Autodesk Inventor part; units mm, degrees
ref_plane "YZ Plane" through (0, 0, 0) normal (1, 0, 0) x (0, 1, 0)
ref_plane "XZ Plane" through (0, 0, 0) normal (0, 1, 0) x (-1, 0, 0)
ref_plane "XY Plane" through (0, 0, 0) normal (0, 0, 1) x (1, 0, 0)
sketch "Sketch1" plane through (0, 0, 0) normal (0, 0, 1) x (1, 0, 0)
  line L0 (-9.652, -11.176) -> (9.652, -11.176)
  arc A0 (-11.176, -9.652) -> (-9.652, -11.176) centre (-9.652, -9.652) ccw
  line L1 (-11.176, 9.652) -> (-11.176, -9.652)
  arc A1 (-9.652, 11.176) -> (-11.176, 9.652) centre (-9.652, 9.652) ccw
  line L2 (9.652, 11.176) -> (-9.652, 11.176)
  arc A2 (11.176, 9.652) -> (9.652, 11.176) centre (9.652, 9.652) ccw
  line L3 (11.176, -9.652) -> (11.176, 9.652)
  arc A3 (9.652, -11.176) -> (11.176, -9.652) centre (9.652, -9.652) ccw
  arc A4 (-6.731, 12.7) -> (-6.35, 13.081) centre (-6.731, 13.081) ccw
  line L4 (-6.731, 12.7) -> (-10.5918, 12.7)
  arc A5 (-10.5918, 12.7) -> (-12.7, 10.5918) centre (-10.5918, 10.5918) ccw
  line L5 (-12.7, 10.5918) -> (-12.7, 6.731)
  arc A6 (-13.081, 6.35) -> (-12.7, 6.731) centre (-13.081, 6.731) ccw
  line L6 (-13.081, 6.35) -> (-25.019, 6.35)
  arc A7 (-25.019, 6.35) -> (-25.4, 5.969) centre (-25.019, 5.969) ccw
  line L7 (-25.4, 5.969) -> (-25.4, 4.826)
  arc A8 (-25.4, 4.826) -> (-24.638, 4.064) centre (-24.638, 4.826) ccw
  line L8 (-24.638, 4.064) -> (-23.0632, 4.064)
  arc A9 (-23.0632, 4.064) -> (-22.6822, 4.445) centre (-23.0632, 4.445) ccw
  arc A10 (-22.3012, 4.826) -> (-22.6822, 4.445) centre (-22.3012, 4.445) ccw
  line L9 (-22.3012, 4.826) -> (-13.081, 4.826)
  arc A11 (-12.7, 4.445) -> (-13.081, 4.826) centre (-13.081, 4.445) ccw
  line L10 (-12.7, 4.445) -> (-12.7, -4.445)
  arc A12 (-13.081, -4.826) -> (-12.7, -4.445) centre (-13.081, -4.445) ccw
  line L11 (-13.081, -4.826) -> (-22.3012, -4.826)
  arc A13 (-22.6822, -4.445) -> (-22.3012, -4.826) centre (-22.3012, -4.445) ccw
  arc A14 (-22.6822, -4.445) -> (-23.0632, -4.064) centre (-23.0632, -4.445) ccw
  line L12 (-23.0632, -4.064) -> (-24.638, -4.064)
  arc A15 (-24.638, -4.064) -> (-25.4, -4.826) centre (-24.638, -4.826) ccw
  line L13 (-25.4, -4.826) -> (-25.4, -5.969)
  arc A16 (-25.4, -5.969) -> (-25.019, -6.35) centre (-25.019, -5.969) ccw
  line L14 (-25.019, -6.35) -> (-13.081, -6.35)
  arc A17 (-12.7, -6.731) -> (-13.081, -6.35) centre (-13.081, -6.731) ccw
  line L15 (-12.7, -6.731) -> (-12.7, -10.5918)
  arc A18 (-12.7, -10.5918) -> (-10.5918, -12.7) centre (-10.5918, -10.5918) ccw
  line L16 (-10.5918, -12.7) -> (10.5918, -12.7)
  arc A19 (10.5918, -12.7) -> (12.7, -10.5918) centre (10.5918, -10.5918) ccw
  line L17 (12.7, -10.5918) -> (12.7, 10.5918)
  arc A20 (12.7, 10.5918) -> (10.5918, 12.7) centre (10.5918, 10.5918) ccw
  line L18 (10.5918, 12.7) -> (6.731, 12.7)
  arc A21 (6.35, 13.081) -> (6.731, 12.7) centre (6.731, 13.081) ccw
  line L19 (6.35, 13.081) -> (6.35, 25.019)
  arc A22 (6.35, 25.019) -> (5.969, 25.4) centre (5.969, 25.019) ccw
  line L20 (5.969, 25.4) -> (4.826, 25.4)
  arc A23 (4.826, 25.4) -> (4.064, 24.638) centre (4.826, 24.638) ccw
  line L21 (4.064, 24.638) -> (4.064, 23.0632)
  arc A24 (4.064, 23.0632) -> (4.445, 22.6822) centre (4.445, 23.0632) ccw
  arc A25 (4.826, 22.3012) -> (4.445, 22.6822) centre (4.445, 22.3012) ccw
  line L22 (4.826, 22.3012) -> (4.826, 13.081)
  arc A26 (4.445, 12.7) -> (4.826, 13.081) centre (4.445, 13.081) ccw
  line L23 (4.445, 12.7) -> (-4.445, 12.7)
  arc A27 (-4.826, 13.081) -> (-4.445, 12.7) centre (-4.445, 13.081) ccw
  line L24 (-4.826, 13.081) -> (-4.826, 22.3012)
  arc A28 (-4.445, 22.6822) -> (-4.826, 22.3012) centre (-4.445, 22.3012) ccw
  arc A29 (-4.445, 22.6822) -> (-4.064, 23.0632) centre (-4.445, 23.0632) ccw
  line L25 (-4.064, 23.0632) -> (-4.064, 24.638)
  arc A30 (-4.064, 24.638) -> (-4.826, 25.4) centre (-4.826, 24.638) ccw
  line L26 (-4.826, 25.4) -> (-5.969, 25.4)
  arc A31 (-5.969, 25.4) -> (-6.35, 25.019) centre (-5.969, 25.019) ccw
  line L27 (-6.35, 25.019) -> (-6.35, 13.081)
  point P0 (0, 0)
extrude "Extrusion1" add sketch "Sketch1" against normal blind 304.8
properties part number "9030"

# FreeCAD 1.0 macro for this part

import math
import FreeCAD as App
import Part
import Sketcher
Q = App.Units.Quantity

doc = App.newDocument("Part")
body = doc.addObject("PartDesign::Body", "Body")

# Sketch on XY plane
sketch1 = doc.addObject("Sketcher::SketchObject", "Sketch")
body.addObject(sketch1)
sketch1.AttachmentSupport = (doc.XY_Plane, [""])
sketch1.MapMode = "FlatFace"
sketch1.addGeometry([
    Part.ArcOfCircle(Part.Circle(App.Vector(-6.73, 13.08, 0), App.Vector(0, 0, 1), 0.38), math.radians(-90), math.radians(0)),  # 0
    Part.LineSegment(App.Vector(-6.73, 12.7, 0), App.Vector(-10.59, 12.7, 0)),  # 1
    Part.ArcOfCircle(Part.Circle(App.Vector(-10.59, 10.59, 0), App.Vector(0, 0, 1), 2.11), math.radians(90), math.radians(180)),  # 2
    Part.LineSegment(App.Vector(-12.7, 10.59, 0), App.Vector(-12.7, 6.73, 0)),  # 3
    Part.ArcOfCircle(Part.Circle(App.Vector(-13.08, 6.73, 0), App.Vector(0, 0, 1), 0.38), math.radians(-90), math.radians(0)),  # 4
    Part.LineSegment(App.Vector(-13.08, 6.35, 0), App.Vector(-25.02, 6.35, 0)),  # 5
    Part.ArcOfCircle(Part.Circle(App.Vector(-25.02, 5.97, 0), App.Vector(0, 0, 1), 0.38), math.radians(90), math.radians(180)),  # 6
    Part.LineSegment(App.Vector(-25.4, 5.97, 0), App.Vector(-25.4, 4.83, 0)),  # 7
    Part.ArcOfCircle(Part.Circle(App.Vector(-24.64, 4.83, 0), App.Vector(0, 0, 1), 0.76), math.radians(180), math.radians(270)),  # 8
    Part.LineSegment(App.Vector(-24.64, 4.06, 0), App.Vector(-23.06, 4.06, 0)),  # 9
    Part.ArcOfCircle(Part.Circle(App.Vector(-23.06, 4.45, 0), App.Vector(0, 0, 1), 0.38), math.radians(-90), math.radians(0)),  # 10
    Part.ArcOfCircle(Part.Circle(App.Vector(-22.3, 4.45, 0), App.Vector(0, 0, 1), 0.38), math.radians(90), math.radians(180)),  # 11
    Part.LineSegment(App.Vector(-22.3, 4.83, 0), App.Vector(-13.08, 4.83, 0)),  # 12
    Part.ArcOfCircle(Part.Circle(App.Vector(-13.08, 4.45, 0), App.Vector(0, 0, 1), 0.38), math.radians(0), math.radians(90)),  # 13
    Part.LineSegment(App.Vector(-12.7, 4.45, 0), App.Vector(-12.7, -4.45, 0)),  # 14
    Part.ArcOfCircle(Part.Circle(App.Vector(-13.08, -4.45, 0), App.Vector(0, 0, 1), 0.38), math.radians(-90), math.radians(0)),  # 15
    Part.LineSegment(App.Vector(-13.08, -4.83, 0), App.Vector(-22.3, -4.83, 0)),  # 16
    Part.ArcOfCircle(Part.Circle(App.Vector(-22.3, -4.45, 0), App.Vector(0, 0, 1), 0.38), math.radians(180), math.radians(270)),  # 17
    Part.ArcOfCircle(Part.Circle(App.Vector(-23.06, -4.45, 0), App.Vector(0, 0, 1), 0.38), math.radians(0), math.radians(90)),  # 18
    Part.LineSegment(App.Vector(-23.06, -4.06, 0), App.Vector(-24.64, -4.06, 0)),  # 19
    Part.ArcOfCircle(Part.Circle(App.Vector(-24.64, -4.83, 0), App.Vector(0, 0, 1), 0.76), math.radians(90), math.radians(180)),  # 20
    Part.LineSegment(App.Vector(-25.4, -4.83, 0), App.Vector(-25.4, -5.97, 0)),  # 21
    Part.ArcOfCircle(Part.Circle(App.Vector(-25.02, -5.97, 0), App.Vector(0, 0, 1), 0.38), math.radians(180), math.radians(270)),  # 22
    Part.LineSegment(App.Vector(-25.02, -6.35, 0), App.Vector(-13.08, -6.35, 0)),  # 23
    Part.ArcOfCircle(Part.Circle(App.Vector(-13.08, -6.73, 0), App.Vector(0, 0, 1), 0.38), math.radians(0), math.radians(90)),  # 24
    Part.LineSegment(App.Vector(-12.7, -6.73, 0), App.Vector(-12.7, -10.59, 0)),  # 25
    Part.ArcOfCircle(Part.Circle(App.Vector(-10.59, -10.59, 0), App.Vector(0, 0, 1), 2.11), math.radians(180), math.radians(270)),  # 26
    Part.LineSegment(App.Vector(-10.59, -12.7, 0), App.Vector(10.59, -12.7, 0)),  # 27
    Part.ArcOfCircle(Part.Circle(App.Vector(10.59, -10.59, 0), App.Vector(0, 0, 1), 2.11), math.radians(-90), math.radians(0)),  # 28
    Part.LineSegment(App.Vector(12.7, -10.59, 0), App.Vector(12.7, 10.59, 0)),  # 29
    Part.ArcOfCircle(Part.Circle(App.Vector(10.59, 10.59, 0), App.Vector(0, 0, 1), 2.11), math.radians(0), math.radians(90)),  # 30
    Part.LineSegment(App.Vector(10.59, 12.7, 0), App.Vector(6.73, 12.7, 0)),  # 31
    Part.ArcOfCircle(Part.Circle(App.Vector(6.73, 13.08, 0), App.Vector(0, 0, 1), 0.38), math.radians(180), math.radians(270)),  # 32
    Part.LineSegment(App.Vector(6.35, 13.08, 0), App.Vector(6.35, 25.02, 0)),  # 33
    Part.ArcOfCircle(Part.Circle(App.Vector(5.97, 25.02, 0), App.Vector(0, 0, 1), 0.38), math.radians(0), math.radians(90)),  # 34
    Part.LineSegment(App.Vector(5.97, 25.4, 0), App.Vector(4.83, 25.4, 0)),  # 35
    Part.ArcOfCircle(Part.Circle(App.Vector(4.83, 24.64, 0), App.Vector(0, 0, 1), 0.76), math.radians(90), math.radians(180)),  # 36
    Part.LineSegment(App.Vector(4.06, 24.64, 0), App.Vector(4.06, 23.06, 0)),  # 37
    Part.ArcOfCircle(Part.Circle(App.Vector(4.45, 23.06, 0), App.Vector(0, 0, 1), 0.38), math.radians(180), math.radians(270)),  # 38
    Part.ArcOfCircle(Part.Circle(App.Vector(4.45, 22.3, 0), App.Vector(0, 0, 1), 0.38), math.radians(0), math.radians(90)),  # 39
    Part.LineSegment(App.Vector(4.83, 22.3, 0), App.Vector(4.83, 13.08, 0)),  # 40
    Part.ArcOfCircle(Part.Circle(App.Vector(4.45, 13.08, 0), App.Vector(0, 0, 1), 0.38), math.radians(-90), math.radians(0)),  # 41
    Part.LineSegment(App.Vector(4.45, 12.7, 0), App.Vector(-4.45, 12.7, 0)),  # 42
    Part.ArcOfCircle(Part.Circle(App.Vector(-4.45, 13.08, 0), App.Vector(0, 0, 1), 0.38), math.radians(180), math.radians(270)),  # 43
    Part.LineSegment(App.Vector(-4.83, 13.08, 0), App.Vector(-4.83, 22.3, 0)),  # 44
    Part.ArcOfCircle(Part.Circle(App.Vector(-4.45, 22.3, 0), App.Vector(0, 0, 1), 0.38), math.radians(90), math.radians(180)),  # 45
    Part.ArcOfCircle(Part.Circle(App.Vector(-4.45, 23.06, 0), App.Vector(0, 0, 1), 0.38), math.radians(-90), math.radians(0)),  # 46
    Part.LineSegment(App.Vector(-4.06, 23.06, 0), App.Vector(-4.06, 24.64, 0)),  # 47
    Part.ArcOfCircle(Part.Circle(App.Vector(-4.83, 24.64, 0), App.Vector(0, 0, 1), 0.76), math.radians(0), math.radians(90)),  # 48
    Part.LineSegment(App.Vector(-4.83, 25.4, 0), App.Vector(-5.97, 25.4, 0)),  # 49
    Part.ArcOfCircle(Part.Circle(App.Vector(-5.97, 25.02, 0), App.Vector(0, 0, 1), 0.38), math.radians(90), math.radians(180)),  # 50
    Part.LineSegment(App.Vector(-6.35, 25.02, 0), App.Vector(-6.35, 13.08, 0)),  # 51
    Part.LineSegment(App.Vector(9.65, -11.18, 0), App.Vector(-9.65, -11.18, 0)),  # 52
    Part.ArcOfCircle(Part.Circle(App.Vector(-9.65, -9.65, 0), App.Vector(0, 0, 1), 1.52), math.radians(180), math.radians(270)),  # 53
    Part.LineSegment(App.Vector(-11.18, -9.65, 0), App.Vector(-11.18, 9.65, 0)),  # 54
    Part.ArcOfCircle(Part.Circle(App.Vector(-9.65, 9.65, 0), App.Vector(0, 0, 1), 1.52), math.radians(90), math.radians(180)),  # 55
    Part.LineSegment(App.Vector(-9.65, 11.18, 0), App.Vector(9.65, 11.18, 0)),  # 56
    Part.ArcOfCircle(Part.Circle(App.Vector(9.65, 9.65, 0), App.Vector(0, 0, 1), 1.52), math.radians(0), math.radians(90)),  # 57
    Part.LineSegment(App.Vector(11.18, 9.65, 0), App.Vector(11.18, -9.65, 0)),  # 58
    Part.ArcOfCircle(Part.Circle(App.Vector(9.65, -9.65, 0), App.Vector(0, 0, 1), 1.52), math.radians(-90), math.radians(0)),  # 59
], False)
sketch1.addConstraint([
    Sketcher.Constraint("Tangent", 0, 1, 1, 1),
    Sketcher.Constraint("Tangent", 1, 2, 2, 1),
    Sketcher.Constraint("Tangent", 2, 2, 3, 1),
    Sketcher.Constraint("Tangent", 3, 2, 4, 2),
    Sketcher.Constraint("Tangent", 4, 1, 5, 1),
    Sketcher.Constraint("Tangent", 5, 2, 6, 1),
    Sketcher.Constraint("Tangent", 6, 2, 7, 1),
    Sketcher.Constraint("Tangent", 7, 2, 8, 1),
    Sketcher.Constraint("Tangent", 8, 2, 9, 1),
    Sketcher.Constraint("Tangent", 9, 2, 10, 1),
    Sketcher.Constraint("Tangent", 10, 2, 11, 2),
    Sketcher.Constraint("Tangent", 11, 1, 12, 1),
    Sketcher.Constraint("Tangent", 12, 2, 13, 2),
    Sketcher.Constraint("Tangent", 13, 1, 14, 1),
    Sketcher.Constraint("Tangent", 14, 2, 15, 2),
    Sketcher.Constraint("Tangent", 15, 1, 16, 1),
    Sketcher.Constraint("Tangent", 16, 2, 17, 2),
    Sketcher.Constraint("Tangent", 17, 1, 18, 1),
    Sketcher.Constraint("Tangent", 18, 2, 19, 1),
    Sketcher.Constraint("Tangent", 19, 2, 20, 1),
    Sketcher.Constraint("Tangent", 20, 2, 21, 1),
    Sketcher.Constraint("Tangent", 21, 2, 22, 1),
    Sketcher.Constraint("Tangent", 22, 2, 23, 1),
    Sketcher.Constraint("Tangent", 23, 2, 24, 2),
    Sketcher.Constraint("Tangent", 24, 1, 25, 1),
    Sketcher.Constraint("Tangent", 25, 2, 26, 1),
    Sketcher.Constraint("Tangent", 26, 2, 27, 1),
    Sketcher.Constraint("Tangent", 27, 2, 28, 1),
    Sketcher.Constraint("Tangent", 28, 2, 29, 1),
    Sketcher.Constraint("Tangent", 29, 2, 30, 1),
    Sketcher.Constraint("Tangent", 30, 2, 31, 1),
    Sketcher.Constraint("Tangent", 31, 2, 32, 2),
    Sketcher.Constraint("Tangent", 32, 1, 33, 1),
    Sketcher.Constraint("Tangent", 33, 2, 34, 1),
    Sketcher.Constraint("Tangent", 34, 2, 35, 1),
    Sketcher.Constraint("Tangent", 35, 2, 36, 1),
    Sketcher.Constraint("Tangent", 36, 2, 37, 1),
    Sketcher.Constraint("Tangent", 37, 2, 38, 1),
    Sketcher.Constraint("Tangent", 38, 2, 39, 2),
    Sketcher.Constraint("Tangent", 39, 1, 40, 1),
    Sketcher.Constraint("Tangent", 40, 2, 41, 2),
    Sketcher.Constraint("Tangent", 41, 1, 42, 1),
    Sketcher.Constraint("Tangent", 42, 2, 43, 2),
    Sketcher.Constraint("Tangent", 43, 1, 44, 1),
    Sketcher.Constraint("Tangent", 44, 2, 45, 2),
    Sketcher.Constraint("Tangent", 45, 1, 46, 1),
    Sketcher.Constraint("Tangent", 46, 2, 47, 1),
    Sketcher.Constraint("Tangent", 47, 2, 48, 1),
    Sketcher.Constraint("Tangent", 48, 2, 49, 1),
    Sketcher.Constraint("Tangent", 49, 2, 50, 1),
    Sketcher.Constraint("Tangent", 50, 2, 51, 1),
    Sketcher.Constraint("Tangent", 51, 2, 0, 2),
    Sketcher.Constraint("Tangent", 52, 2, 53, 2),
    Sketcher.Constraint("Tangent", 53, 1, 54, 1),
    Sketcher.Constraint("Tangent", 54, 2, 55, 2),
    Sketcher.Constraint("Tangent", 55, 1, 56, 1),
    Sketcher.Constraint("Tangent", 56, 2, 57, 2),
    Sketcher.Constraint("Tangent", 57, 1, 58, 1),
    Sketcher.Constraint("Tangent", 58, 2, 59, 2),
    Sketcher.Constraint("Tangent", 59, 1, 52, 1),
    Sketcher.Constraint("Horizontal", 1),
    Sketcher.Constraint("Vertical", 3),
    Sketcher.Constraint("Horizontal", 5),
    Sketcher.Constraint("Vertical", 7),
    Sketcher.Constraint("Horizontal", 9),
    Sketcher.Constraint("Horizontal", 12),
    Sketcher.Constraint("Vertical", 14),
    Sketcher.Constraint("Horizontal", 16),
    Sketcher.Constraint("Horizontal", 19),
    Sketcher.Constraint("Vertical", 21),
    Sketcher.Constraint("Horizontal", 23),
    Sketcher.Constraint("Vertical", 25),
    Sketcher.Constraint("Horizontal", 27),
    Sketcher.Constraint("Vertical", 29),
    Sketcher.Constraint("Horizontal", 31),
    Sketcher.Constraint("Vertical", 33),
    Sketcher.Constraint("Horizontal", 35),
    Sketcher.Constraint("Vertical", 37),
    Sketcher.Constraint("Vertical", 40),
    Sketcher.Constraint("Horizontal", 42),
    Sketcher.Constraint("Vertical", 44),
    Sketcher.Constraint("Vertical", 47),
    Sketcher.Constraint("Horizontal", 49),
    Sketcher.Constraint("Vertical", 51),
    Sketcher.Constraint("Horizontal", 52),
    Sketcher.Constraint("Vertical", 54),
    Sketcher.Constraint("Horizontal", 56),
    Sketcher.Constraint("Vertical", 58),
    Sketcher.Constraint("Equal", 0, 4),
    Sketcher.Constraint("Equal", 4, 6),
    Sketcher.Constraint("Equal", 6, 10),
    Sketcher.Constraint("Equal", 10, 11),
    Sketcher.Constraint("Equal", 11, 13),
    Sketcher.Constraint("Equal", 13, 15),
    Sketcher.Constraint("Equal", 15, 17),
    Sketcher.Constraint("Equal", 17, 18),
    Sketcher.Constraint("Equal", 8, 20),
    Sketcher.Constraint("Equal", 18, 22),
    Sketcher.Constraint("Equal", 22, 24),
    Sketcher.Constraint("Equal", 2, 26),
    Sketcher.Constraint("Equal", 26, 28),
    Sketcher.Constraint("Equal", 28, 30),
    Sketcher.Constraint("Equal", 24, 32),
    Sketcher.Constraint("Equal", 32, 34),
    Sketcher.Constraint("Equal", 20, 36),
    Sketcher.Constraint("Equal", 34, 38),
    Sketcher.Constraint("Equal", 38, 39),
    Sketcher.Constraint("Equal", 39, 41),
    Sketcher.Constraint("Equal", 41, 43),
    Sketcher.Constraint("Equal", 43, 45),
    Sketcher.Constraint("Equal", 45, 46),
    Sketcher.Constraint("Equal", 36, 48),
    Sketcher.Constraint("Equal", 46, 50),
    Sketcher.Constraint("Equal", 53, 55),
    Sketcher.Constraint("Equal", 55, 57),
    Sketcher.Constraint("Equal", 57, 59),
    Sketcher.Constraint("Symmetric", 2, 3, 28, 3, -1, 1),
    Sketcher.Constraint("Symmetric", 26, 3, 30, 3, -1, 1),
    Sketcher.Constraint("Symmetric", 53, 3, 57, 3, -1, 1),
    Sketcher.Constraint("Symmetric", 39, 3, 45, 3, -2),
    Sketcher.Constraint("Symmetric", 36, 3, 48, 3, -2),
    Sketcher.Constraint("Symmetric", 11, 3, 17, 3, -1),
    Sketcher.Constraint("Symmetric", 8, 3, 20, 3, -1),
    Sketcher.Constraint("Horizontal", 10, 3, 11, 3),
    Sketcher.Constraint("Horizontal", 32, 3, 41, 3),
    Sketcher.Constraint("Horizontal", 7, 2, 11, 1),
    Sketcher.Constraint("Vertical", 4, 3, 13, 3),
    Sketcher.Constraint("Vertical", 38, 3, 39, 3),
    Sketcher.Constraint("Equal", 1, 31),
    Sketcher.Constraint("Equal", 31, 3),
    Sketcher.Constraint("Equal", 49, 7),
    Sketcher.Constraint("Equal", 42, 14),
    Sketcher.Constraint("Equal", 7, 21),
    Sketcher.Constraint("Equal", 23, 33),
    Sketcher.Constraint("Equal", 19, 37),
    Sketcher.Constraint("Equal", 56, 54),
    Sketcher.Constraint("Radius", 8, Q("0.03 in")),
    Sketcher.Constraint("Radius", 53, Q("0.06 in")),
    Sketcher.Constraint("DistanceX", 6, 2, -1, 1, Q("1 in")),
    Sketcher.Constraint("Radius", 2, Q("0.083 in")),
    Sketcher.Constraint("DistanceX", 5, 2, 5, 1, Q("0.47 in")),
    Sketcher.Constraint("DistanceX", 42, 2, 42, 1, Q("0.35 in")),
    Sketcher.Constraint("DistanceX", 52, 2, 52, 1, Q("0.76 in")),
    Sketcher.Constraint("DistanceX", 1, 2, 1, 1, Q("0.152 in")),
    Sketcher.Constraint("DistanceX", 9, 1, 9, 2, Q("0.062 in")),
])
pad1 = doc.addObject("PartDesign::Pad", "Pad")
body.addObject(pad1)
pad1.Profile = sketch1
pad1.Length = Q("12 in")
pad1.Reversed = True

doc.recompute()
